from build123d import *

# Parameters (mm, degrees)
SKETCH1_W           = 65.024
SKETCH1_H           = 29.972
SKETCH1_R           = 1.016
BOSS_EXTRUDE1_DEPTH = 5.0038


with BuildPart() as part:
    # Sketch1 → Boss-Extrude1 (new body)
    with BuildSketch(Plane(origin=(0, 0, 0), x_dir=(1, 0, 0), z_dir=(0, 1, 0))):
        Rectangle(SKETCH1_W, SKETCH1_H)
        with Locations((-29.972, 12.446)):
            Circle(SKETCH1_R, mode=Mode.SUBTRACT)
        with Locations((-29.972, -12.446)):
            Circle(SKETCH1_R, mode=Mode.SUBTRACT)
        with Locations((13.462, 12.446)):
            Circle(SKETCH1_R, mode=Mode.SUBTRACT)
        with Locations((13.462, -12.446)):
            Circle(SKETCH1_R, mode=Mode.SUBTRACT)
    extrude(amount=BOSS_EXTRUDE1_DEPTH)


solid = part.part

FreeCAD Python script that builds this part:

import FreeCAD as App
import Part
import Sketcher

V = App.Vector
Q = App.Units.Quantity


def add_polygon(sketch, points):
    """Adds a closed chain of lines whose ends are joined by coincident constraints."""
    first, n = sketch.GeometryCount, len(points)
    for a, b in zip(points, points[1:] + points[:1]):
        sketch.addGeometry(Part.LineSegment(App.Vector(*a, 0), App.Vector(*b, 0)), False)
    for i in range(n):
        sketch.addConstraint(Sketcher.Constraint("Coincident", first + i, 2, first + (i + 1) % n, 1))

doc = App.newDocument("Part")
body = doc.addObject("PartDesign::Body", "Body")

# Sketch on XZ plane
sketch1 = body.newObject("Sketcher::SketchObject", "Sketch")
sketch1.AttachmentSupport = (doc.getObject("XZ_Plane"), [""])
sketch1.MapMode = "FlatFace"
add_polygon(sketch1, [(-32.5, -15), (-32.5, 15), (32.5, 15), (32.5, -15)])  # lines 0-3
sketch1.addGeometry(Part.Circle(V(-30, 12.4, 0), V(0, 0, 1), 1), False)  # 4
sketch1.addGeometry(Part.Circle(V(13.5, 12.4, 0), V(0, 0, 1), 1), False)  # 5
sketch1.addGeometry(Part.Circle(V(-30, -12.4, 0), V(0, 0, 1), 1), False)  # 6
sketch1.addGeometry(Part.Circle(V(13.5, -12.4, 0), V(0, 0, 1), 1), False)  # 7
sketch1.addConstraint(Sketcher.Constraint("Vertical", 0))
sketch1.addConstraint(Sketcher.Constraint("Horizontal", 1))
sketch1.addConstraint(Sketcher.Constraint("Vertical", 2))
sketch1.addConstraint(Sketcher.Constraint("Horizontal", 3))
sketch1.addConstraint(Sketcher.Constraint("Equal", 4, 5))
sketch1.addConstraint(Sketcher.Constraint("Equal", 5, 6))
sketch1.addConstraint(Sketcher.Constraint("Equal", 6, 7))
sketch1.addConstraint(Sketcher.Constraint("Symmetric", 0, 2, 2, 2, -1, 1))
sketch1.addConstraint(Sketcher.Constraint("Symmetric", 4, 3, 6, 3, -1))
sketch1.addConstraint(Sketcher.Constraint("Symmetric", 5, 3, 7, 3, -1))
sketch1.addConstraint(Sketcher.Constraint("Horizontal", 4, 3, 5, 3))
sketch1.addConstraint(Sketcher.Constraint("Diameter", 4, Q("0.08 in")))
sketch1.addConstraint(Sketcher.Constraint("DistanceX", 1, 1, 1, 2, Q("2.56 in")))
sketch1.addConstraint(Sketcher.Constraint("DistanceY", 0, 1, 0, 2, Q("1.18 in")))
sketch1.addConstraint(Sketcher.Constraint("DistanceX", 0, 2, 4, 3, Q("0.1 in")))
sketch1.addConstraint(Sketcher.Constraint("DistanceY", 4, 3, 0, 2, Q("0.1 in")))
sketch1.addConstraint(Sketcher.Constraint("DistanceX", -1, 1, 5, 3, Q("0.53 in")))
pad1 = body.newObject("PartDesign::Pad", "Pad")
pad1.Profile = sketch1
pad1.Length = Q("0.197 in")
pad1.Reversed = True

doc.recompute()
